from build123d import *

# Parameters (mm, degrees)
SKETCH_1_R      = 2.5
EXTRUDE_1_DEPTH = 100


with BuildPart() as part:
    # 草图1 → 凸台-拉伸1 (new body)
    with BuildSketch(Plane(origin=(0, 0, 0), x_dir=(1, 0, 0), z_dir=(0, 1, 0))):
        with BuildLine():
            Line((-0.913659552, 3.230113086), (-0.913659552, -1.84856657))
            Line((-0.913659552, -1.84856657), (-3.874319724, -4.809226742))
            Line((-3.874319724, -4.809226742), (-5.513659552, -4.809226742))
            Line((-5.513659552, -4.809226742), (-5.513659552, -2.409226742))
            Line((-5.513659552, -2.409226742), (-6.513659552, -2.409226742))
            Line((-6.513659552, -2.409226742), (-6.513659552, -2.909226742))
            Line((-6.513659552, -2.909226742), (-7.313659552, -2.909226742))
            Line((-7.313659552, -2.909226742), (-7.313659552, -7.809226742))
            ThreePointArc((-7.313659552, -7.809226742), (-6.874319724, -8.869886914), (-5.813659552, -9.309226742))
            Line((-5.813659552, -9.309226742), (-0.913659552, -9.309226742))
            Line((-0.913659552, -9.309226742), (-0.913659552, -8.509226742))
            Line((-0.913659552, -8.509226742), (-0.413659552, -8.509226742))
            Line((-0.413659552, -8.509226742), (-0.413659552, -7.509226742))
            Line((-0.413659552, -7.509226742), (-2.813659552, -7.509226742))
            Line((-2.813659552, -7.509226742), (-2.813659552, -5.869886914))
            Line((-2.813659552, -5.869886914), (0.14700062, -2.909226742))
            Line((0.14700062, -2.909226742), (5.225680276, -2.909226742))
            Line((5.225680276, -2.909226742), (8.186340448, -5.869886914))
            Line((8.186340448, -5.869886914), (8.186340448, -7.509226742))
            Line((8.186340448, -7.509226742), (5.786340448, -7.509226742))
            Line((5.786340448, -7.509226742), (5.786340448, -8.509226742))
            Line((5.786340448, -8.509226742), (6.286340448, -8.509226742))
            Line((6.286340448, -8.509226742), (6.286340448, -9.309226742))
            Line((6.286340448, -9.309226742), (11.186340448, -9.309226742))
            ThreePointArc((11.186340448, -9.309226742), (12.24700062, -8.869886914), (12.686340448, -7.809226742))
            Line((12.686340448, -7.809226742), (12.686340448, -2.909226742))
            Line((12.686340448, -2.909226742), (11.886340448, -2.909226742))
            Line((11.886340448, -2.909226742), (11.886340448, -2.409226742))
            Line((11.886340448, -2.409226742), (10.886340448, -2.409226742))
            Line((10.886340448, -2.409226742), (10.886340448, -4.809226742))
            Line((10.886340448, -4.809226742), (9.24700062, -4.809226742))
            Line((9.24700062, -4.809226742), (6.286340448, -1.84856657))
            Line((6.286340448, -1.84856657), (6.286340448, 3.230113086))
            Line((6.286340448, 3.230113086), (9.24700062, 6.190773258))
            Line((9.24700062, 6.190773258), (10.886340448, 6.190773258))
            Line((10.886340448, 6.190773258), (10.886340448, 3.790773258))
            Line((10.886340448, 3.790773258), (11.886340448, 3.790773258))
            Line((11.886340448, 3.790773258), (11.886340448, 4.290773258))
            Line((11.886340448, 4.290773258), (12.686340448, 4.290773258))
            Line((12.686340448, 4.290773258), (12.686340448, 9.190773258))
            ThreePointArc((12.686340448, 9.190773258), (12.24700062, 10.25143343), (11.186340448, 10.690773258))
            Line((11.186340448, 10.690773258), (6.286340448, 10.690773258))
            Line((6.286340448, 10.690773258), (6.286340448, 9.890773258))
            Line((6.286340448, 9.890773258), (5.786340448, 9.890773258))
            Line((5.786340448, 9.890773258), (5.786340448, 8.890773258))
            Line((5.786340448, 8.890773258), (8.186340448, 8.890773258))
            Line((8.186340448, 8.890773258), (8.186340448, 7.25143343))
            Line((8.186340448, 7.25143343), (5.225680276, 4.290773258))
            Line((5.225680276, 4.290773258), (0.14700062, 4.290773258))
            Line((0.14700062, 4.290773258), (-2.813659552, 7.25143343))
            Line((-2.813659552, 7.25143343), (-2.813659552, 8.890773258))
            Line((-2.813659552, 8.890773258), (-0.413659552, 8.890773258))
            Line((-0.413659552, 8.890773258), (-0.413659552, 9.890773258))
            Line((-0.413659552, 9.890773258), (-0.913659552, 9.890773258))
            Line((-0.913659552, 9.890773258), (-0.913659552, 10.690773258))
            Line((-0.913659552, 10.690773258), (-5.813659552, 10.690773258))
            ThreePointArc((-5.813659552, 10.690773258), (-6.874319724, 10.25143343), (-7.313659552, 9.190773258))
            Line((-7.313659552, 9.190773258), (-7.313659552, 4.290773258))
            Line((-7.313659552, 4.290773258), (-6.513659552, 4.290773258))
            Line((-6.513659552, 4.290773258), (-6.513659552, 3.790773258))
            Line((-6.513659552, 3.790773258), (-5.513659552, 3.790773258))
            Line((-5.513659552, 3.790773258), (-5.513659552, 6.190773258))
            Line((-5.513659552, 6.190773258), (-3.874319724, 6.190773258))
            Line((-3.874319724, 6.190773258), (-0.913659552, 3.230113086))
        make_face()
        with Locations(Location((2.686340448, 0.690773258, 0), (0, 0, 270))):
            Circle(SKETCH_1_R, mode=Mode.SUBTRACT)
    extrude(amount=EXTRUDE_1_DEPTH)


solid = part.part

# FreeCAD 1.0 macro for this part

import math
import FreeCAD as App
import Part
import Sketcher

V = App.Vector

doc = App.newDocument("Part")
body = doc.addObject("PartDesign::Body", "Body")

sketch1 = body.newObject("Sketcher::SketchObject", "Sketch")
sketch1.AttachmentSupport = (doc.getObject("XZ_Plane"), [""])
sketch1.MapMode = "FlatFace"
sketch1.addGeometry(Part.LineSegment(V(-0.91, -3.23, 0), V(-0.91, 1.85, 0)), False)
sketch1.addGeometry(Part.LineSegment(V(-0.91, 1.85, 0), V(-3.87, 4.81, 0)), False)
sketch1.addGeometry(Part.LineSegment(V(-3.87, 4.81, 0), V(-5.51, 4.81, 0)), False)
sketch1.addGeometry(Part.LineSegment(V(-5.51, 4.81, 0), V(-5.51, 2.41, 0)), False)
sketch1.addGeometry(Part.LineSegment(V(-5.51, 2.41, 0), V(-6.51, 2.41, 0)), False)
sketch1.addGeometry(Part.LineSegment(V(-6.51, 2.41, 0), V(-6.51, 2.91, 0)), False)
sketch1.addGeometry(Part.LineSegment(V(-6.51, 2.91, 0), V(-7.31, 2.91, 0)), False)
sketch1.addGeometry(Part.LineSegment(V(-7.31, 2.91, 0), V(-7.31, 7.81, 0)), False)
sketch1.addGeometry(Part.ArcOfCircle(Part.Circle(V(-5.81, 7.81, 0), V(0, 0, 1), 1.5), math.radians(90), math.radians(180)), False)
sketch1.addGeometry(Part.LineSegment(V(-5.81, 9.31, 0), V(-0.91, 9.31, 0)), False)
sketch1.addGeometry(Part.LineSegment(V(-0.91, 9.31, 0), V(-0.91, 8.51, 0)), False)
sketch1.addGeometry(Part.LineSegment(V(-0.91, 8.51, 0), V(-0.41, 8.51, 0)), False)
sketch1.addGeometry(Part.LineSegment(V(-0.41, 8.51, 0), V(-0.41, 7.51, 0)), False)
sketch1.addGeometry(Part.LineSegment(V(-0.41, 7.51, 0), V(-2.81, 7.51, 0)), False)
sketch1.addGeometry(Part.LineSegment(V(-2.81, 7.51, 0), V(-2.81, 5.87, 0)), False)
sketch1.addGeometry(Part.LineSegment(V(-2.81, 5.87, 0), V(0.15, 2.91, 0)), False)
sketch1.addGeometry(Part.LineSegment(V(0.15, 2.91, 0), V(5.23, 2.91, 0)), False)
sketch1.addGeometry(Part.LineSegment(V(5.23, 2.91, 0), V(8.19, 5.87, 0)), False)
sketch1.addGeometry(Part.LineSegment(V(8.19, 5.87, 0), V(8.19, 7.51, 0)), False)
sketch1.addGeometry(Part.LineSegment(V(8.19, 7.51, 0), V(5.79, 7.51, 0)), False)
sketch1.addGeometry(Part.LineSegment(V(5.79, 7.51, 0), V(5.79, 8.51, 0)), False)
sketch1.addGeometry(Part.LineSegment(V(5.79, 8.51, 0), V(6.29, 8.51, 0)), False)
sketch1.addGeometry(Part.LineSegment(V(6.29, 8.51, 0), V(6.29, 9.31, 0)), False)
sketch1.addGeometry(Part.LineSegment(V(6.29, 9.31, 0), V(11.19, 9.31, 0)), False)
sketch1.addGeometry(Part.ArcOfCircle(Part.Circle(V(11.19, 7.81, 0), V(0, 0, 1), 1.5), math.radians(0), math.radians(90)), False)
sketch1.addGeometry(Part.LineSegment(V(12.69, 7.81, 0), V(12.69, 2.91, 0)), False)
sketch1.addGeometry(Part.LineSegment(V(12.69, 2.91, 0), V(11.89, 2.91, 0)), False)
sketch1.addGeometry(Part.LineSegment(V(11.89, 2.91, 0), V(11.89, 2.41, 0)), False)
sketch1.addGeometry(Part.LineSegment(V(11.89, 2.41, 0), V(10.89, 2.41, 0)), False)
sketch1.addGeometry(Part.LineSegment(V(10.89, 2.41, 0), V(10.89, 4.81, 0)), False)
sketch1.addGeometry(Part.LineSegment(V(10.89, 4.81, 0), V(9.25, 4.81, 0)), False)
sketch1.addGeometry(Part.LineSegment(V(9.25, 4.81, 0), V(6.29, 1.85, 0)), False)
sketch1.addGeometry(Part.LineSegment(V(6.29, 1.85, 0), V(6.29, -3.23, 0)), False)
sketch1.addGeometry(Part.LineSegment(V(6.29, -3.23, 0), V(9.25, -6.19, 0)), False)
sketch1.addGeometry(Part.LineSegment(V(9.25, -6.19, 0), V(10.89, -6.19, 0)), False)
sketch1.addGeometry(Part.LineSegment(V(10.89, -6.19, 0), V(10.89, -3.79, 0)), False)
sketch1.addGeometry(Part.LineSegment(V(10.89, -3.79, 0), V(11.89, -3.79, 0)), False)
sketch1.addGeometry(Part.LineSegment(V(11.89, -3.79, 0), V(11.89, -4.29, 0)), False)
sketch1.addGeometry(Part.LineSegment(V(11.89, -4.29, 0), V(12.69, -4.29, 0)), False)
sketch1.addGeometry(Part.LineSegment(V(12.69, -4.29, 0), V(12.69, -9.19, 0)), False)
sketch1.addGeometry(Part.ArcOfCircle(Part.Circle(V(11.19, -9.19, 0), V(0, 0, 1), 1.5), math.radians(-90), math.radians(0)), False)
sketch1.addGeometry(Part.LineSegment(V(11.19, -10.69, 0), V(6.29, -10.69, 0)), False)
sketch1.addGeometry(Part.LineSegment(V(6.29, -10.69, 0), V(6.29, -9.89, 0)), False)
sketch1.addGeometry(Part.LineSegment(V(6.29, -9.89, 0), V(5.79, -9.89, 0)), False)
sketch1.addGeometry(Part.LineSegment(V(5.79, -9.89, 0), V(5.79, -8.89, 0)), False)
sketch1.addGeometry(Part.LineSegment(V(5.79, -8.89, 0), V(8.19, -8.89, 0)), False)
sketch1.addGeometry(Part.LineSegment(V(8.19, -8.89, 0), V(8.19, -7.25, 0)), False)
sketch1.addGeometry(Part.LineSegment(V(8.19, -7.25, 0), V(5.23, -4.29, 0)), False)
sketch1.addGeometry(Part.LineSegment(V(5.23, -4.29, 0), V(0.15, -4.29, 0)), False)
sketch1.addGeometry(Part.LineSegment(V(0.15, -4.29, 0), V(-2.81, -7.25, 0)), False)
sketch1.addGeometry(Part.LineSegment(V(-2.81, -7.25, 0), V(-2.81, -8.89, 0)), False)
sketch1.addGeometry(Part.LineSegment(V(-2.81, -8.89, 0), V(-0.41, -8.89, 0)), False)
sketch1.addGeometry(Part.LineSegment(V(-0.41, -8.89, 0), V(-0.41, -9.89, 0)), False)
sketch1.addGeometry(Part.LineSegment(V(-0.41, -9.89, 0), V(-0.91, -9.89, 0)), False)
sketch1.addGeometry(Part.LineSegment(V(-0.91, -9.89, 0), V(-0.91, -10.69, 0)), False)
sketch1.addGeometry(Part.LineSegment(V(-0.91, -10.69, 0), V(-5.81, -10.69, 0)), False)
sketch1.addGeometry(Part.ArcOfCircle(Part.Circle(V(-5.81, -9.19, 0), V(0, 0, 1), 1.5), math.radians(180), math.radians(270)), False)
sketch1.addGeometry(Part.LineSegment(V(-7.31, -9.19, 0), V(-7.31, -4.29, 0)), False)
sketch1.addGeometry(Part.LineSegment(V(-7.31, -4.29, 0), V(-6.51, -4.29, 0)), False)
sketch1.addGeometry(Part.LineSegment(V(-6.51, -4.29, 0), V(-6.51, -3.79, 0)), False)
sketch1.addGeometry(Part.LineSegment(V(-6.51, -3.79, 0), V(-5.51, -3.79, 0)), False)
sketch1.addGeometry(Part.LineSegment(V(-5.51, -3.79, 0), V(-5.51, -6.19, 0)), False)
sketch1.addGeometry(Part.LineSegment(V(-5.51, -6.19, 0), V(-3.87, -6.19, 0)), False)
sketch1.addGeometry(Part.LineSegment(V(-3.87, -6.19, 0), V(-0.91, -3.23, 0)), False)
sketch1.addGeometry(Part.Circle(V(2.69, -0.69, 0), V(0, 0, 1), 2.5), False)
sketch1.addConstraint(Sketcher.Constraint("Coincident", 0, 2, 1, 1))
sketch1.addConstraint(Sketcher.Constraint("Coincident", 1, 2, 2, 1))
sketch1.addConstraint(Sketcher.Constraint("Coincident", 2, 2, 3, 1))
sketch1.addConstraint(Sketcher.Constraint("Coincident", 3, 2, 4, 1))
sketch1.addConstraint(Sketcher.Constraint("Coincident", 4, 2, 5, 1))
sketch1.addConstraint(Sketcher.Constraint("Coincident", 5, 2, 6, 1))
sketch1.addConstraint(Sketcher.Constraint("Coincident", 6, 2, 7, 1))
sketch1.addConstraint(Sketcher.Constraint("Tangent", 7, 2, 8, 2))
sketch1.addConstraint(Sketcher.Constraint("Tangent", 8, 1, 9, 1))
sketch1.addConstraint(Sketcher.Constraint("Coincident", 9, 2, 10, 1))
sketch1.addConstraint(Sketcher.Constraint("Coincident", 10, 2, 11, 1))
sketch1.addConstraint(Sketcher.Constraint("Coincident", 11, 2, 12, 1))
sketch1.addConstraint(Sketcher.Constraint("Coincident", 12, 2, 13, 1))
sketch1.addConstraint(Sketcher.Constraint("Coincident", 13, 2, 14, 1))
sketch1.addConstraint(Sketcher.Constraint("Coincident", 14, 2, 15, 1))
sketch1.addConstraint(Sketcher.Constraint("Coincident", 15, 2, 16, 1))
sketch1.addConstraint(Sketcher.Constraint("Coincident", 16, 2, 17, 1))
sketch1.addConstraint(Sketcher.Constraint("Coincident", 17, 2, 18, 1))
sketch1.addConstraint(Sketcher.Constraint("Coincident", 18, 2, 19, 1))
sketch1.addConstraint(Sketcher.Constraint("Coincident", 19, 2, 20, 1))
sketch1.addConstraint(Sketcher.Constraint("Coincident", 20, 2, 21, 1))
sketch1.addConstraint(Sketcher.Constraint("Coincident", 21, 2, 22, 1))
sketch1.addConstraint(Sketcher.Constraint("Coincident", 22, 2, 23, 1))
sketch1.addConstraint(Sketcher.Constraint("Tangent", 23, 2, 24, 2))
sketch1.addConstraint(Sketcher.Constraint("Tangent", 24, 1, 25, 1))
sketch1.addConstraint(Sketcher.Constraint("Coincident", 25, 2, 26, 1))
sketch1.addConstraint(Sketcher.Constraint("Coincident", 26, 2, 27, 1))
sketch1.addConstraint(Sketcher.Constraint("Coincident", 27, 2, 28, 1))
sketch1.addConstraint(Sketcher.Constraint("Coincident", 28, 2, 29, 1))
sketch1.addConstraint(Sketcher.Constraint("Coincident", 29, 2, 30, 1))
sketch1.addConstraint(Sketcher.Constraint("Coincident", 30, 2, 31, 1))
sketch1.addConstraint(Sketcher.Constraint("Coincident", 31, 2, 32, 1))
sketch1.addConstraint(Sketcher.Constraint("Coincident", 32, 2, 33, 1))
sketch1.addConstraint(Sketcher.Constraint("Coincident", 33, 2, 34, 1))
sketch1.addConstraint(Sketcher.Constraint("Coincident", 34, 2, 35, 1))
sketch1.addConstraint(Sketcher.Constraint("Coincident", 35, 2, 36, 1))
sketch1.addConstraint(Sketcher.Constraint("Coincident", 36, 2, 37, 1))
sketch1.addConstraint(Sketcher.Constraint("Coincident", 37, 2, 38, 1))
sketch1.addConstraint(Sketcher.Constraint("Coincident", 38, 2, 39, 1))
sketch1.addConstraint(Sketcher.Constraint("Tangent", 39, 2, 40, 2))
sketch1.addConstraint(Sketcher.Constraint("Tangent", 40, 1, 41, 1))
sketch1.addConstraint(Sketcher.Constraint("Coincident", 41, 2, 42, 1))
sketch1.addConstraint(Sketcher.Constraint("Coincident", 42, 2, 43, 1))
sketch1.addConstraint(Sketcher.Constraint("Coincident", 43, 2, 44, 1))
sketch1.addConstraint(Sketcher.Constraint("Coincident", 44, 2, 45, 1))
sketch1.addConstraint(Sketcher.Constraint("Coincident", 45, 2, 46, 1))
sketch1.addConstraint(Sketcher.Constraint("Coincident", 46, 2, 47, 1))
sketch1.addConstraint(Sketcher.Constraint("Coincident", 47, 2, 48, 1))
sketch1.addConstraint(Sketcher.Constraint("Coincident", 48, 2, 49, 1))
sketch1.addConstraint(Sketcher.Constraint("Coincident", 49, 2, 50, 1))
sketch1.addConstraint(Sketcher.Constraint("Coincident", 50, 2, 51, 1))
sketch1.addConstraint(Sketcher.Constraint("Coincident", 51, 2, 52, 1))
sketch1.addConstraint(Sketcher.Constraint("Coincident", 52, 2, 53, 1))
sketch1.addConstraint(Sketcher.Constraint("Coincident", 53, 2, 54, 1))
sketch1.addConstraint(Sketcher.Constraint("Coincident", 54, 2, 55, 1))
sketch1.addConstraint(Sketcher.Constraint("Tangent", 55, 2, 56, 2))
sketch1.addConstraint(Sketcher.Constraint("Tangent", 56, 1, 57, 1))
sketch1.addConstraint(Sketcher.Constraint("Coincident", 57, 2, 58, 1))
sketch1.addConstraint(Sketcher.Constraint("Coincident", 58, 2, 59, 1))
sketch1.addConstraint(Sketcher.Constraint("Coincident", 59, 2, 60, 1))
sketch1.addConstraint(Sketcher.Constraint("Coincident", 60, 2, 61, 1))
sketch1.addConstraint(Sketcher.Constraint("Coincident", 61, 2, 62, 1))
sketch1.addConstraint(Sketcher.Constraint("Coincident", 62, 2, 63, 1))
sketch1.addConstraint(Sketcher.Constraint("Coincident", 63, 2, 0, 1))
sketch1.addConstraint(Sketcher.Constraint("Vertical", 0))
sketch1.addConstraint(Sketcher.Constraint("Horizontal", 2))
sketch1.addConstraint(Sketcher.Constraint("Vertical", 3))
sketch1.addConstraint(Sketcher.Constraint("Horizontal", 4))
sketch1.addConstraint(Sketcher.Constraint("Vertical", 5))
sketch1.addConstraint(Sketcher.Constraint("Horizontal", 6))
sketch1.addConstraint(Sketcher.Constraint("Vertical", 7))
sketch1.addConstraint(Sketcher.Constraint("Horizontal", 9))
sketch1.addConstraint(Sketcher.Constraint("Vertical", 10))
sketch1.addConstraint(Sketcher.Constraint("Horizontal", 11))
sketch1.addConstraint(Sketcher.Constraint("Vertical", 12))
sketch1.addConstraint(Sketcher.Constraint("Horizontal", 13))
sketch1.addConstraint(Sketcher.Constraint("Vertical", 14))
sketch1.addConstraint(Sketcher.Constraint("Horizontal", 16))
sketch1.addConstraint(Sketcher.Constraint("Vertical", 18))
sketch1.addConstraint(Sketcher.Constraint("Horizontal", 19))
sketch1.addConstraint(Sketcher.Constraint("Vertical", 20))
sketch1.addConstraint(Sketcher.Constraint("Horizontal", 21))
sketch1.addConstraint(Sketcher.Constraint("Vertical", 22))
sketch1.addConstraint(Sketcher.Constraint("Horizontal", 23))
sketch1.addConstraint(Sketcher.Constraint("Vertical", 25))
sketch1.addConstraint(Sketcher.Constraint("Horizontal", 26))
sketch1.addConstraint(Sketcher.Constraint("Vertical", 27))
sketch1.addConstraint(Sketcher.Constraint("Horizontal", 28))
sketch1.addConstraint(Sketcher.Constraint("Vertical", 29))
sketch1.addConstraint(Sketcher.Constraint("Horizontal", 30))
sketch1.addConstraint(Sketcher.Constraint("Vertical", 32))
sketch1.addConstraint(Sketcher.Constraint("Horizontal", 34))
sketch1.addConstraint(Sketcher.Constraint("Vertical", 35))
sketch1.addConstraint(Sketcher.Constraint("Horizontal", 36))
sketch1.addConstraint(Sketcher.Constraint("Vertical", 37))
sketch1.addConstraint(Sketcher.Constraint("Horizontal", 38))
sketch1.addConstraint(Sketcher.Constraint("Vertical", 39))
sketch1.addConstraint(Sketcher.Constraint("Horizontal", 41))
sketch1.addConstraint(Sketcher.Constraint("Vertical", 42))
sketch1.addConstraint(Sketcher.Constraint("Horizontal", 43))
sketch1.addConstraint(Sketcher.Constraint("Vertical", 44))
sketch1.addConstraint(Sketcher.Constraint("Horizontal", 45))
sketch1.addConstraint(Sketcher.Constraint("Vertical", 46))
sketch1.addConstraint(Sketcher.Constraint("Horizontal", 48))
sketch1.addConstraint(Sketcher.Constraint("Vertical", 50))
sketch1.addConstraint(Sketcher.Constraint("Horizontal", 51))
sketch1.addConstraint(Sketcher.Constraint("Vertical", 52))
sketch1.addConstraint(Sketcher.Constraint("Horizontal", 53))
sketch1.addConstraint(Sketcher.Constraint("Vertical", 54))
sketch1.addConstraint(Sketcher.Constraint("Horizontal", 55))
sketch1.addConstraint(Sketcher.Constraint("Vertical", 57))
sketch1.addConstraint(Sketcher.Constraint("Horizontal", 58))
sketch1.addConstraint(Sketcher.Constraint("Vertical", 59))
sketch1.addConstraint(Sketcher.Constraint("Horizontal", 60))
sketch1.addConstraint(Sketcher.Constraint("Vertical", 61))
sketch1.addConstraint(Sketcher.Constraint("Horizontal", 62))
sketch1.addConstraint(Sketcher.Constraint("Equal", 8, 24))
sketch1.addConstraint(Sketcher.Constraint("Equal", 24, 40))
sketch1.addConstraint(Sketcher.Constraint("Equal", 40, 56))
sketch1.addConstraint(Sketcher.Constraint("Parallel", 1, 15))
sketch1.addConstraint(Sketcher.Constraint("Perpendicular", 15, 17))
sketch1.addConstraint(Sketcher.Constraint("Parallel", 17, 31))
sketch1.addConstraint(Sketcher.Constraint("Perpendicular", 31, 33))
sketch1.addConstraint(Sketcher.Constraint("Parallel", 33, 47))
sketch1.addConstraint(Sketcher.Constraint("Perpendicular", 47, 49))
sketch1.addConstraint(Sketcher.Constraint("Parallel", 49, 63))
sketch1.addConstraint(Sketcher.Constraint("Horizontal", 8, 3, 24, 3))
sketch1.addConstraint(Sketcher.Constraint("Horizontal", 40, 3, 56, 3))
sketch1.addConstraint(Sketcher.Constraint("Horizontal", 6, 2, 15, 2))
sketch1.addConstraint(Sketcher.Constraint("Horizontal", 14, 2, 17, 2))
sketch1.addConstraint(Sketcher.Constraint("Horizontal", 13, 2, 18, 2))
sketch1.addConstraint(Sketcher.Constraint("Horizontal", 11, 2, 20, 2))
sketch1.addConstraint(Sketcher.Constraint("Horizontal", 16, 2, 25, 2))
sketch1.addConstraint(Sketcher.Constraint("Horizontal", 4, 2, 27, 2))
sketch1.addConstraint(Sketcher.Constraint("Horizontal", 2, 2, 29, 2))
sketch1.addConstraint(Sketcher.Constraint("Horizontal", 0, 2, 31, 2))
sketch1.addConstraint(Sketcher.Constraint("Horizontal", 38, 2, 47, 2))
sketch1.addConstraint(Sketcher.Constraint("Horizontal", 46, 2, 49, 2))
sketch1.addConstraint(Sketcher.Constraint("Horizontal", 45, 2, 50, 2))
sketch1.addConstraint(Sketcher.Constraint("Horizontal", 43, 2, 52, 2))
sketch1.addConstraint(Sketcher.Constraint("Horizontal", 48, 2, 57, 2))
sketch1.addConstraint(Sketcher.Constraint("Horizontal", 36, 2, 59, 2))
sketch1.addConstraint(Sketcher.Constraint("Horizontal", 34, 2, 61, 2))
sketch1.addConstraint(Sketcher.Constraint("Horizontal", 32, 2, 63, 2))
sketch1.addConstraint(Sketcher.Constraint("Vertical", 24, 3, 40, 3))
sketch1.addConstraint(Sketcher.Constraint("Vertical", 8, 3, 56, 3))
sketch1.addConstraint(Sketcher.Constraint("Vertical", 0, 2, 9, 2))
sketch1.addConstraint(Sketcher.Constraint("Vertical", 22, 2, 31, 2))
sketch1.addConstraint(Sketcher.Constraint("Vertical", 30, 2, 33, 2))
sketch1.addConstraint(Sketcher.Constraint("Vertical", 29, 2, 34, 2))
sketch1.addConstraint(Sketcher.Constraint("Vertical", 27, 2, 36, 2))
sketch1.addConstraint(Sketcher.Constraint("Vertical", 32, 2, 41, 2))
sketch1.addConstraint(Sketcher.Constraint("Vertical", 20, 2, 43, 2))
sketch1.addConstraint(Sketcher.Constraint("Vertical", 18, 2, 45, 2))
sketch1.addConstraint(Sketcher.Constraint("Vertical", 16, 2, 47, 2))
sketch1.addConstraint(Sketcher.Constraint("Vertical", 15, 2, 48, 2))
sketch1.addConstraint(Sketcher.Constraint("Vertical", 14, 2, 49, 2))
sketch1.addConstraint(Sketcher.Constraint("Vertical", 12, 2, 51, 2))
sketch1.addConstraint(Sketcher.Constraint("Vertical", 10, 2, 53, 2))
sketch1.addConstraint(Sketcher.Constraint("Vertical", 5, 2, 58, 2))
sketch1.addConstraint(Sketcher.Constraint("Vertical", 3, 2, 60, 2))
sketch1.addConstraint(Sketcher.Constraint("Equal", 13, 19))
sketch1.addConstraint(Sketcher.Constraint("Equal", 11, 21))
sketch1.addConstraint(Sketcher.Constraint("Equal", 9, 23))
sketch1.addConstraint(Sketcher.Constraint("Equal", 6, 26))
sketch1.addConstraint(Sketcher.Constraint("Equal", 4, 28))
sketch1.addConstraint(Sketcher.Constraint("Equal", 48, 0))
sketch1.addConstraint(Sketcher.Constraint("Equal", 51, 3))
sketch1.addConstraint(Sketcher.Constraint("Equal", 53, 5))
sketch1.addConstraint(Sketcher.Constraint("Equal", 55, 7))
sketch1.addConstraint(Sketcher.Constraint("Equal", 58, 10))
sketch1.addConstraint(Sketcher.Constraint("Equal", 60, 12))
sketch1.addConstraint(Sketcher.Constraint("Equal", 62, 14))
sketch1.addConstraint(Sketcher.Constraint("Equal", 29, 35))
sketch1.addConstraint(Sketcher.Constraint("Equal", 27, 37))
sketch1.addConstraint(Sketcher.Constraint("Equal", 25, 39))
sketch1.addConstraint(Sketcher.Constraint("Equal", 22, 42))
sketch1.addConstraint(Sketcher.Constraint("Equal", 20, 44))
sketch1.addConstraint(Sketcher.Constraint("Diameter", 64, 5.0))
sketch1.addConstraint(Sketcher.Constraint("Radius", 8, 1.5))
sketch1.addConstraint(Sketcher.Constraint("DistanceX", 4, 2, 4, 1, 1.0))
sketch1.addConstraint(Sketcher.Constraint("DistanceX", 6, 2, 6, 1, 0.8))
sketch1.addConstraint(Sketcher.Constraint("DistanceX", 9, 1, 9, 2, 4.9))
sketch1.addConstraint(Sketcher.Constraint("DistanceX", 11, 1, 11, 2, 0.5))
sketch1.addConstraint(Sketcher.Constraint("DistanceX", 13, 2, 13, 1, 2.4))
sketch1.addConstraint(Sketcher.Constraint("DistanceX", -1, 1, 15, 2, 0.147001))
sketch1.addConstraint(Sketcher.Constraint("DistanceX", -1, 1, 30, 2, 9.247001))
sketch1.addConstraint(Sketcher.Constraint("DistanceX", 2, 2, 2, 1, 1.63934))
sketch1.addConstraint(Sketcher.Constraint("DistanceX", -1, 1, 64, 3, 2.68634))
sketch1.addConstraint(Sketcher.Constraint("DistanceY", -1, 1, 8, 3, 7.809227))
sketch1.addConstraint(Sketcher.Constraint("DistanceY", 64, 3, -1, 1, 0.690773))
pad1 = body.newObject("PartDesign::Pad", "Pad")
pad1.Profile = sketch1
pad1.Length = 100
pad1.Reversed = True

doc.recompute()
